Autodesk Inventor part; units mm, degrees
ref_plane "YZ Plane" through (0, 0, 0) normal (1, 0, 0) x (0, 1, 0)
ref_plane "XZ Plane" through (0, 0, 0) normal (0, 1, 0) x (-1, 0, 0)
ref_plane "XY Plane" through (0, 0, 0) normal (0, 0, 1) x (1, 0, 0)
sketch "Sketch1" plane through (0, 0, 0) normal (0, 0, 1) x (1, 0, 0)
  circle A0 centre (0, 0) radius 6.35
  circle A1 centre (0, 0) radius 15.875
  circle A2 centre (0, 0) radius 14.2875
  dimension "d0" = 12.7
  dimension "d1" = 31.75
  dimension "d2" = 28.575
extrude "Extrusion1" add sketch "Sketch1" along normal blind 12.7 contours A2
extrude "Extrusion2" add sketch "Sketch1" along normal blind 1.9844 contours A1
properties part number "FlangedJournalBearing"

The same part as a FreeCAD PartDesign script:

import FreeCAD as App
import Part
import Sketcher

V = App.Vector
Q = App.Units.Quantity

doc = App.newDocument("Part")
params = doc.addObject("Spreadsheet::Sheet", "Params")
for row, (alias, value) in enumerate([
    ("sketch1_diameter", "0.5 in"),
    ("sketch1_diameter2", "1.125 in"),
    ("pad1_length", "0.5 in"),
    ("sketch2_diameter", "1.25 in"),
    ("sketch2_diameter2", "1.125 in"),
    ("pad2_length", "0.078126 in"),
], start=1):
    params.set(f"A{row}", alias)
    params.set(f"B{row}", "=" + value)
    params.setAlias(f"B{row}", alias)

body = doc.addObject("PartDesign::Body", "Body")

# Sketch on XY plane
sketch1 = doc.addObject("Sketcher::SketchObject", "Sketch")
body.addObject(sketch1)
sketch1.AttachmentSupport = (doc.XY_Plane, [""])
sketch1.MapMode = "FlatFace"
sketch1.addGeometry([
    Part.Circle(V(0, 0, 0), V(0, 0, 1), 14),
    Part.Circle(V(0, 0, 0), V(0, 0, 1), 6),
], False)
sketch1.addConstraint([
    Sketcher.Constraint("Coincident", 0, 3, -1, 1),
    Sketcher.Constraint("Coincident", 1, 3, -1, 1),
    Sketcher.Constraint("Diameter", 1, Q("0.5 in")),
    Sketcher.Constraint("Diameter", 0, Q("1.125 in")),
])
sketch1.setExpression("Constraints[2]", "Params.sketch1_diameter")
sketch1.setExpression("Constraints[3]", "Params.sketch1_diameter2")
pad1 = doc.addObject("PartDesign::Pad", "Pad")
body.addObject(pad1)
pad1.Profile = sketch1
pad1.setExpression("Length", "Params.pad1_length")

# Sketch on XY plane
sketch2 = doc.addObject("Sketcher::SketchObject", "Sketch001")
body.addObject(sketch2)
sketch2.AttachmentSupport = (doc.XY_Plane, [""])
sketch2.MapMode = "FlatFace"
sketch2.addGeometry([
    Part.Circle(V(0, 0, 0), V(0, 0, 1), 16),
    Part.Circle(V(0, 0, 0), V(0, 0, 1), 14),
], False)
sketch2.addConstraint([
    Sketcher.Constraint("Coincident", 0, 3, -1, 1),
    Sketcher.Constraint("Coincident", 1, 3, -1, 1),
    Sketcher.Constraint("Diameter", 0, Q("1.25 in")),
    Sketcher.Constraint("Diameter", 1, Q("1.125 in")),
])
sketch2.setExpression("Constraints[2]", "Params.sketch2_diameter")
sketch2.setExpression("Constraints[3]", "Params.sketch2_diameter2")
pad2 = doc.addObject("PartDesign::Pad", "Pad001")
body.addObject(pad2)
pad2.Profile = sketch2
pad2.setExpression("Length", "Params.pad2_length")

doc.recompute()
